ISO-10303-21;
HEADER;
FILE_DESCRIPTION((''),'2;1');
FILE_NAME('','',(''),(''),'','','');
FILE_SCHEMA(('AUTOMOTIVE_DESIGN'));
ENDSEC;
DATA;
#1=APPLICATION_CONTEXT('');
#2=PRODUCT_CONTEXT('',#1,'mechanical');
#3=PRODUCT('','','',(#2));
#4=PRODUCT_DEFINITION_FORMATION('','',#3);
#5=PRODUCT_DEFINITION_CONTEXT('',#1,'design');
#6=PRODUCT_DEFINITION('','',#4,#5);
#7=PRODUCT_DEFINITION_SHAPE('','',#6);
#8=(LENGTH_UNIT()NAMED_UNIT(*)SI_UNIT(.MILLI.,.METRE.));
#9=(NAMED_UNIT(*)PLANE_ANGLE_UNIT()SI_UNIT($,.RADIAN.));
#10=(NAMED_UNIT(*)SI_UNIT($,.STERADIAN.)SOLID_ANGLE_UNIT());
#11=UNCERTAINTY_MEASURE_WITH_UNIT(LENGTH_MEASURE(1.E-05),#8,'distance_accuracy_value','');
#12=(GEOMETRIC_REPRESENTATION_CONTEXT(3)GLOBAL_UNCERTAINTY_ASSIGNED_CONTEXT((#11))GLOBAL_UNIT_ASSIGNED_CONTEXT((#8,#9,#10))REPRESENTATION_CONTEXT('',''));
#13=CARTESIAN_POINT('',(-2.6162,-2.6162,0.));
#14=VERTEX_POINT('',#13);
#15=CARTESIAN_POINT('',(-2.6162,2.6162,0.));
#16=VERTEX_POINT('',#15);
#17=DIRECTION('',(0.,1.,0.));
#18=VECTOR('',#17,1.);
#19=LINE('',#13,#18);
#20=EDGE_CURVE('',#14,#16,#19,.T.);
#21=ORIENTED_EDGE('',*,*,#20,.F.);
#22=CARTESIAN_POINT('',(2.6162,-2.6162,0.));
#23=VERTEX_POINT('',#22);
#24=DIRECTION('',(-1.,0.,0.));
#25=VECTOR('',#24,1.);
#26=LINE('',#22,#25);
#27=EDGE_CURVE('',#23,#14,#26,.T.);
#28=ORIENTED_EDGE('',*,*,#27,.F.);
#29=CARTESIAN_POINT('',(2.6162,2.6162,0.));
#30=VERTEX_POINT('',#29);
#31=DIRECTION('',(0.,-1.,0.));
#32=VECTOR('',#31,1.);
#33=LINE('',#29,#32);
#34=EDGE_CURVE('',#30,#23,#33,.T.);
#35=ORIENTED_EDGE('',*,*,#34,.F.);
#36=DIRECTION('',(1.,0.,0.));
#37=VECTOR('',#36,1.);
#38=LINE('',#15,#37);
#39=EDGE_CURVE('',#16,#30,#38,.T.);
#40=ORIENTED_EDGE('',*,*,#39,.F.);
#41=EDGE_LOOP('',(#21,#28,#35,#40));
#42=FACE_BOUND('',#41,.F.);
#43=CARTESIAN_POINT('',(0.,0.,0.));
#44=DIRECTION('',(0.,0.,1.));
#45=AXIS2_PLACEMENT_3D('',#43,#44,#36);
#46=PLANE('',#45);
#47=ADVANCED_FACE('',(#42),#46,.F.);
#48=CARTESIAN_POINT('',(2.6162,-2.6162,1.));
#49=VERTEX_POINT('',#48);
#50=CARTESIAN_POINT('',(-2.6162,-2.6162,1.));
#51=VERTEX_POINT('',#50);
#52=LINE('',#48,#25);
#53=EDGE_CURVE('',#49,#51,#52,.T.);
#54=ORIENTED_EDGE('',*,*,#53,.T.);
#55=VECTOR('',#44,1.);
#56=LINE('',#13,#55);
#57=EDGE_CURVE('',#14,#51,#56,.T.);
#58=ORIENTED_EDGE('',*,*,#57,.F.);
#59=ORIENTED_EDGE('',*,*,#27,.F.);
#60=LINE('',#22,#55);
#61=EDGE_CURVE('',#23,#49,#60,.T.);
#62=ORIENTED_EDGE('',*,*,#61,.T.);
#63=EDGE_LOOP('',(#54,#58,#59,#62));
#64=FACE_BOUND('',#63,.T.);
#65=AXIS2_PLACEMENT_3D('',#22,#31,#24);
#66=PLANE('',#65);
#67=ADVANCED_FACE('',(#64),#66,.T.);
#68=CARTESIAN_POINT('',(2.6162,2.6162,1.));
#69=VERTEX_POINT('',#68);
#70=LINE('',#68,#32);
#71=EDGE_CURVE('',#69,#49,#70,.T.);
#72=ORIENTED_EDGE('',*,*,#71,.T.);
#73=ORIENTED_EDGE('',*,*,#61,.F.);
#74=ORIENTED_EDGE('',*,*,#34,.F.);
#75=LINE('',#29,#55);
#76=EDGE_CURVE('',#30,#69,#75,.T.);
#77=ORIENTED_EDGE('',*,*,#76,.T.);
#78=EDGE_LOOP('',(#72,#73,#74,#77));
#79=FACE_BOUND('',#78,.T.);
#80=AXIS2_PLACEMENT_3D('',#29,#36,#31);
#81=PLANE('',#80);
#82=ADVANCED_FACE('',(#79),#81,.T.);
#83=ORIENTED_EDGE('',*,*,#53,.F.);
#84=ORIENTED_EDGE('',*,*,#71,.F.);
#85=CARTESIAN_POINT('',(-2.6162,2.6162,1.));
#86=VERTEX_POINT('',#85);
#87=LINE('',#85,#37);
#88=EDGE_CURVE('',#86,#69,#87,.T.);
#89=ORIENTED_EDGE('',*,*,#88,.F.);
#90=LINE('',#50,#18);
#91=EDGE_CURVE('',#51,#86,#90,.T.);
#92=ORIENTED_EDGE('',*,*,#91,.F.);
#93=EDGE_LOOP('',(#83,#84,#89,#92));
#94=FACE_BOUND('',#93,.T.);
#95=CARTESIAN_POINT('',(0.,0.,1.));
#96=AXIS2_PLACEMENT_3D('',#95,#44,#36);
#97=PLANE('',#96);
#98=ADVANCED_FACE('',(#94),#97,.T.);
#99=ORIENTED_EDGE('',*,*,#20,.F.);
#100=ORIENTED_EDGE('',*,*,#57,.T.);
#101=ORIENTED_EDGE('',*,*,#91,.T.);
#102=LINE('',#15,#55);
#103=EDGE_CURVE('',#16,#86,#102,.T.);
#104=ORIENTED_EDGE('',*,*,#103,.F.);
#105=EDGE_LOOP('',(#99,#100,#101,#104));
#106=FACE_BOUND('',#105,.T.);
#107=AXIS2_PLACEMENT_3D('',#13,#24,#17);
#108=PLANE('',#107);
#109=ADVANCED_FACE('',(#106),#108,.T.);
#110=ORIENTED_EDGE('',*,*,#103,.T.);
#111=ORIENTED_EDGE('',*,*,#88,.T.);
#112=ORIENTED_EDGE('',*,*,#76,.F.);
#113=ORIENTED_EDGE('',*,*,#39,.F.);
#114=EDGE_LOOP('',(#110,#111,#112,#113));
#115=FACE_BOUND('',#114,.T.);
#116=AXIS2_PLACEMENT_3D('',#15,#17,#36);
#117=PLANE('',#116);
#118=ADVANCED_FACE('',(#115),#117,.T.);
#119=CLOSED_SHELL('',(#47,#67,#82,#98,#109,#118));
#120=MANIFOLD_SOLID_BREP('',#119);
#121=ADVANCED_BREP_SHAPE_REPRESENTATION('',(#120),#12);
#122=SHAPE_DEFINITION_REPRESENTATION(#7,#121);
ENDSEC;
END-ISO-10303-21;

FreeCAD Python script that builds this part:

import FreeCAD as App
import Part
import Sketcher


def add_polygon(sketch, points):
    """Adds a closed chain of lines whose ends are joined by coincident constraints."""
    first, n = sketch.GeometryCount, len(points)
    for a, b in zip(points, points[1:] + points[:1]):
        sketch.addGeometry(Part.LineSegment(App.Vector(*a, 0), App.Vector(*b, 0)), False)
    for i in range(n):
        sketch.addConstraint(Sketcher.Constraint("Coincident", first + i, 2, first + (i + 1) % n, 1))

doc = App.newDocument("Part")
body = doc.addObject("PartDesign::Body", "Body")

# Sketch on XY plane
sketch1 = doc.addObject("Sketcher::SketchObject", "Sketch")
body.addObject(sketch1)
sketch1.AttachmentSupport = (doc.XY_Plane, [""])
sketch1.MapMode = "FlatFace"
add_polygon(sketch1, [(3, 3), (-3, 3), (-3, -3), (3, -3)])  # lines 0-3
sketch1.addConstraint(Sketcher.Constraint("Horizontal", 0))
sketch1.addConstraint(Sketcher.Constraint("Vertical", 1))
sketch1.addConstraint(Sketcher.Constraint("Horizontal", 2))
sketch1.addConstraint(Sketcher.Constraint("Vertical", 3))
sketch1.addConstraint(Sketcher.Constraint("Symmetric", 0, 2, 2, 2, -1, 1))
sketch1.addConstraint(Sketcher.Constraint("Equal", 2, 1))
sketch1.addConstraint(Sketcher.Constraint("DistanceX", 0, 2, 0, 1, 5.2324))
pad1 = doc.addObject("PartDesign::Pad", "Pad")
body.addObject(pad1)
pad1.Profile = sketch1
pad1.Length = 1

doc.recompute()
